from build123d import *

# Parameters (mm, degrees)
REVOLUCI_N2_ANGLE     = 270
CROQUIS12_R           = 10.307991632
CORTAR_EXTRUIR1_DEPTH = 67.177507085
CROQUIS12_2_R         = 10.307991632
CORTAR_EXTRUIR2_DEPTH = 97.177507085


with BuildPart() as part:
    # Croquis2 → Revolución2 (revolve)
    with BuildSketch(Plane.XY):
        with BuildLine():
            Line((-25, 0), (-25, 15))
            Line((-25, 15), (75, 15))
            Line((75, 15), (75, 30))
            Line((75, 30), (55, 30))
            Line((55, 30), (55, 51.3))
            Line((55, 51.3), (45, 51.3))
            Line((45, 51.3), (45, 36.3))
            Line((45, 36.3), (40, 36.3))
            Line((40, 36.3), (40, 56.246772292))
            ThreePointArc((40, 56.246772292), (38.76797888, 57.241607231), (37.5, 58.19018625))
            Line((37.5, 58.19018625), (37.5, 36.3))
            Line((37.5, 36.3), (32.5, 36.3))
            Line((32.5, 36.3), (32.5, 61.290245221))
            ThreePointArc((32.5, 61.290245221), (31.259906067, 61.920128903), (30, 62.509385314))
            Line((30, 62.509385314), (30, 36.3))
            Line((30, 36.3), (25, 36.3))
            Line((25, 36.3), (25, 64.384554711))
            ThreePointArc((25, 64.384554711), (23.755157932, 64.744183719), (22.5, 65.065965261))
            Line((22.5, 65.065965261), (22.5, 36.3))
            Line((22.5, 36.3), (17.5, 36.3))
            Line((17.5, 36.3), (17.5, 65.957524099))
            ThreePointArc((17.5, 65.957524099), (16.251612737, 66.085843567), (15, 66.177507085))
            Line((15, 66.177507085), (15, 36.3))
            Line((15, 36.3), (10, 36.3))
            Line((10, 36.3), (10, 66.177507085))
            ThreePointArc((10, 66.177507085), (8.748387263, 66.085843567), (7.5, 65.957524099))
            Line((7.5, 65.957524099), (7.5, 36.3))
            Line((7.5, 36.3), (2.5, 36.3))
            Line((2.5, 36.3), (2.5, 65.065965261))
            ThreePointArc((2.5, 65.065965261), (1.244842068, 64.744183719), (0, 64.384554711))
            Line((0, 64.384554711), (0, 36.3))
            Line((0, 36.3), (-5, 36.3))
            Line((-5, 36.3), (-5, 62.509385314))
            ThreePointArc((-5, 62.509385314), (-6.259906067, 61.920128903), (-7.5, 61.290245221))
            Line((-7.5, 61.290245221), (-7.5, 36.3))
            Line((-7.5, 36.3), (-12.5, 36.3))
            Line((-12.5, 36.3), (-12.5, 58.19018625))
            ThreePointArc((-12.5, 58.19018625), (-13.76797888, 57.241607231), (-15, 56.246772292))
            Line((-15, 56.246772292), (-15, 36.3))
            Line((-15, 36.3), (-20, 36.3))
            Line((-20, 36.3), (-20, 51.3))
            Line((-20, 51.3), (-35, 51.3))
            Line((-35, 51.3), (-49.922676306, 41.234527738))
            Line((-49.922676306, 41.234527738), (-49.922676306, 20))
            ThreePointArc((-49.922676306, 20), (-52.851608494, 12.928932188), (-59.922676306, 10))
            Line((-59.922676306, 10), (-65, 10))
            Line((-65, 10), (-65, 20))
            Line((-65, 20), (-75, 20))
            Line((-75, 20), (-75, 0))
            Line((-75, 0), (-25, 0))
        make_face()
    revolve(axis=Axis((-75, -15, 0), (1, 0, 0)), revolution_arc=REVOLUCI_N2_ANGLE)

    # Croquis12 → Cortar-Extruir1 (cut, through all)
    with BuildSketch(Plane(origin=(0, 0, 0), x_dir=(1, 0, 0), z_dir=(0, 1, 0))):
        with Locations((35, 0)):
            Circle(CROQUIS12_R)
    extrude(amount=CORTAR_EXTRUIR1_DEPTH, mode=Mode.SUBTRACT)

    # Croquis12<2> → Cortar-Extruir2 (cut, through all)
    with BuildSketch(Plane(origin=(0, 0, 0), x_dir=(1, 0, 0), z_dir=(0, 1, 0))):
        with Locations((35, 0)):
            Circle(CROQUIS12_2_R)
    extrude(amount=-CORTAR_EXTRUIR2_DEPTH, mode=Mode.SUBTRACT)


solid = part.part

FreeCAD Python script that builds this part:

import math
import FreeCAD as App
import Part
import Sketcher

V = App.Vector
Q = App.Units.Quantity

doc = App.newDocument("Part")
body = doc.addObject("PartDesign::Body", "Body")

# Sketch on XY plane
sketch1 = body.newObject("Sketcher::SketchObject", "Sketch")
sketch1.AttachmentSupport = (doc.getObject("XY_Plane"), [""])
sketch1.MapMode = "FlatFace"
sketch1.addGeometry(Part.LineSegment(V(-25, 0, 0), V(-25, 15, 0)), False)
sketch1.addGeometry(Part.LineSegment(V(-25, 15, 0), V(75, 15, 0)), False)
sketch1.addGeometry(Part.LineSegment(V(75, 15, 0), V(75, 30, 0)), False)
sketch1.addGeometry(Part.LineSegment(V(75, 30, 0), V(55, 30, 0)), False)
sketch1.addGeometry(Part.LineSegment(V(55, 30, 0), V(55, 51.3, 0)), False)
sketch1.addGeometry(Part.LineSegment(V(55, 51.3, 0), V(45, 51.3, 0)), False)
sketch1.addGeometry(Part.LineSegment(V(45, 51.3, 0), V(45, 36.3, 0)), False)
sketch1.addGeometry(Part.LineSegment(V(45, 36.3, 0), V(40, 36.3, 0)), False)
sketch1.addGeometry(Part.LineSegment(V(40, 36.3, 0), V(40, 56.246772, 0)), False)
sketch1.addGeometry(Part.ArcOfCircle(Part.Circle(V(12.5, 23.450583, 0), V(0, 0, 1), 42.8), math.radians(50.019761), math.radians(54.259708)), False)
sketch1.addGeometry(Part.LineSegment(V(37.5, 58.190186, 0), V(37.5, 36.3, 0)), False)
sketch1.addGeometry(Part.LineSegment(V(37.5, 36.3, 0), V(32.5, 36.3, 0)), False)
sketch1.addGeometry(Part.LineSegment(V(32.5, 36.3, 0), V(32.5, 61.290245, 0)), False)
sketch1.addGeometry(Part.ArcOfCircle(Part.Circle(V(12.5, 23.450584, 0), V(0, 0, 1), 42.8), math.radians(62.14149), math.radians(65.865596)), False)
sketch1.addGeometry(Part.LineSegment(V(30, 62.509385, 0), V(30, 36.3, 0)), False)
sketch1.addGeometry(Part.LineSegment(V(30, 36.3, 0), V(25, 36.3, 0)), False)
sketch1.addGeometry(Part.LineSegment(V(25, 36.3, 0), V(25, 64.384555, 0)), False)
sketch1.addGeometry(Part.ArcOfCircle(Part.Circle(V(12.5, 23.450584, 0), V(0, 0, 1), 42.8), math.radians(73.01891), math.radians(76.488245)), False)
sketch1.addGeometry(Part.LineSegment(V(22.5, 65.065965, 0), V(22.5, 36.3, 0)), False)
sketch1.addGeometry(Part.LineSegment(V(22.5, 36.3, 0), V(17.5, 36.3, 0)), False)
sketch1.addGeometry(Part.LineSegment(V(17.5, 36.3, 0), V(17.5, 65.957524, 0)), False)
sketch1.addGeometry(Part.ArcOfCircle(Part.Circle(V(12.5, 23.450585, 0), V(0, 0, 1), 42.799999), math.radians(83.291249), math.radians(86.651378)), False)
sketch1.addGeometry(Part.LineSegment(V(15, 66.177507, 0), V(15, 36.3, 0)), False)
sketch1.addGeometry(Part.LineSegment(V(15, 36.3, 0), V(10, 36.3, 0)), False)
sketch1.addGeometry(Part.LineSegment(V(10, 36.3, 0), V(10, 66.177507, 0)), False)
sketch1.addGeometry(Part.ArcOfCircle(Part.Circle(V(12.5, 23.450585, 0), V(0, 0, 1), 42.799999), math.radians(93.348622), math.radians(96.708751)), False)
sketch1.addGeometry(Part.LineSegment(V(7.5, 65.957524, 0), V(7.5, 36.3, 0)), False)
sketch1.addGeometry(Part.LineSegment(V(7.5, 36.3, 0), V(2.5, 36.3, 0)), False)
sketch1.addGeometry(Part.LineSegment(V(2.5, 36.3, 0), V(2.5, 65.065965, 0)), False)
sketch1.addGeometry(Part.ArcOfCircle(Part.Circle(V(12.5, 23.450584, 0), V(0, 0, 1), 42.8), math.radians(103.511755), math.radians(106.98109)), False)
sketch1.addGeometry(Part.LineSegment(V(0, 64.384555, 0), V(0, 36.3, 0)), False)
sketch1.addGeometry(Part.LineSegment(V(0, 36.3, 0), V(-5, 36.3, 0)), False)
sketch1.addGeometry(Part.LineSegment(V(-5, 36.3, 0), V(-5, 62.509385, 0)), False)
sketch1.addGeometry(Part.ArcOfCircle(Part.Circle(V(12.5, 23.450584, 0), V(0, 0, 1), 42.8), math.radians(114.134404), math.radians(117.85851)), False)
sketch1.addGeometry(Part.LineSegment(V(-7.5, 61.290245, 0), V(-7.5, 36.3, 0)), False)
sketch1.addGeometry(Part.LineSegment(V(-7.5, 36.3, 0), V(-12.5, 36.3, 0)), False)
sketch1.addGeometry(Part.LineSegment(V(-12.5, 36.3, 0), V(-12.5, 58.190186, 0)), False)
sketch1.addGeometry(Part.ArcOfCircle(Part.Circle(V(12.5, 23.450583, 0), V(0, 0, 1), 42.8), math.radians(125.740292), math.radians(129.980239)), False)
sketch1.addGeometry(Part.LineSegment(V(-15, 56.246772, 0), V(-15, 36.3, 0)), False)
sketch1.addGeometry(Part.LineSegment(V(-15, 36.3, 0), V(-20, 36.3, 0)), False)
sketch1.addGeometry(Part.LineSegment(V(-20, 36.3, 0), V(-20, 51.3, 0)), False)
sketch1.addGeometry(Part.LineSegment(V(-20, 51.3, 0), V(-35, 51.3, 0)), False)
sketch1.addGeometry(Part.LineSegment(V(-35, 51.3, 0), V(-49.922676, 41.234528, 0)), False)
sketch1.addGeometry(Part.LineSegment(V(-49.922676, 41.234528, 0), V(-49.922676, 20, 0)), False)
sketch1.addGeometry(Part.ArcOfCircle(Part.Circle(V(-59.922676, 20, 0), V(0, 0, 1), 10), math.radians(-90), math.radians(0)), False)
sketch1.addGeometry(Part.LineSegment(V(-59.922676, 10, 0), V(-65, 10, 0)), False)
sketch1.addGeometry(Part.LineSegment(V(-65, 10, 0), V(-65, 20, 0)), False)
sketch1.addGeometry(Part.LineSegment(V(-65, 20, 0), V(-75, 20, 0)), False)
sketch1.addGeometry(Part.LineSegment(V(-75, 20, 0), V(-75, 0, 0)), False)
sketch1.addGeometry(Part.LineSegment(V(-75, 0, 0), V(-25, 0, 0)), False)
sketch1.addGeometry(Part.LineSegment(V(-75, -15, 0), V(75, -15, 0)), True)  # axis
sketch1.addConstraint(Sketcher.Constraint("Coincident", 0, 2, 1, 1))
sketch1.addConstraint(Sketcher.Constraint("Coincident", 1, 2, 2, 1))
sketch1.addConstraint(Sketcher.Constraint("Coincident", 2, 2, 3, 1))
sketch1.addConstraint(Sketcher.Constraint("Coincident", 3, 2, 4, 1))
sketch1.addConstraint(Sketcher.Constraint("Coincident", 4, 2, 5, 1))
sketch1.addConstraint(Sketcher.Constraint("Coincident", 5, 2, 6, 1))
sketch1.addConstraint(Sketcher.Constraint("Coincident", 6, 2, 7, 1))
sketch1.addConstraint(Sketcher.Constraint("Coincident", 7, 2, 8, 1))
sketch1.addConstraint(Sketcher.Constraint("Coincident", 8, 2, 9, 1))
sketch1.addConstraint(Sketcher.Constraint("Coincident", 9, 2, 10, 1))
sketch1.addConstraint(Sketcher.Constraint("Coincident", 10, 2, 11, 1))
sketch1.addConstraint(Sketcher.Constraint("Coincident", 11, 2, 12, 1))
sketch1.addConstraint(Sketcher.Constraint("Coincident", 12, 2, 13, 1))
sketch1.addConstraint(Sketcher.Constraint("Coincident", 13, 2, 14, 1))
sketch1.addConstraint(Sketcher.Constraint("Coincident", 14, 2, 15, 1))
sketch1.addConstraint(Sketcher.Constraint("Coincident", 15, 2, 16, 1))
sketch1.addConstraint(Sketcher.Constraint("Coincident", 16, 2, 17, 1))
sketch1.addConstraint(Sketcher.Constraint("Coincident", 17, 2, 18, 1))
sketch1.addConstraint(Sketcher.Constraint("Coincident", 18, 2, 19, 1))
sketch1.addConstraint(Sketcher.Constraint("Coincident", 19, 2, 20, 1))
sketch1.addConstraint(Sketcher.Constraint("Coincident", 20, 2, 21, 1))
sketch1.addConstraint(Sketcher.Constraint("Coincident", 21, 2, 22, 1))
sketch1.addConstraint(Sketcher.Constraint("Coincident", 22, 2, 23, 1))
sketch1.addConstraint(Sketcher.Constraint("Coincident", 23, 2, 24, 1))
sketch1.addConstraint(Sketcher.Constraint("Coincident", 24, 2, 25, 1))
sketch1.addConstraint(Sketcher.Constraint("Coincident", 25, 2, 26, 1))
sketch1.addConstraint(Sketcher.Constraint("Coincident", 26, 2, 27, 1))
sketch1.addConstraint(Sketcher.Constraint("Coincident", 27, 2, 28, 1))
sketch1.addConstraint(Sketcher.Constraint("Coincident", 28, 2, 29, 1))
sketch1.addConstraint(Sketcher.Constraint("Coincident", 29, 2, 30, 1))
sketch1.addConstraint(Sketcher.Constraint("Coincident", 30, 2, 31, 1))
sketch1.addConstraint(Sketcher.Constraint("Coincident", 31, 2, 32, 1))
sketch1.addConstraint(Sketcher.Constraint("Coincident", 32, 2, 33, 1))
sketch1.addConstraint(Sketcher.Constraint("Coincident", 33, 2, 34, 1))
sketch1.addConstraint(Sketcher.Constraint("Coincident", 34, 2, 35, 1))
sketch1.addConstraint(Sketcher.Constraint("Coincident", 35, 2, 36, 1))
sketch1.addConstraint(Sketcher.Constraint("Coincident", 36, 2, 37, 1))
sketch1.addConstraint(Sketcher.Constraint("Coincident", 37, 2, 38, 1))
sketch1.addConstraint(Sketcher.Constraint("Coincident", 38, 2, 39, 1))
sketch1.addConstraint(Sketcher.Constraint("Coincident", 39, 2, 40, 1))
sketch1.addConstraint(Sketcher.Constraint("Coincident", 40, 2, 41, 1))
sketch1.addConstraint(Sketcher.Constraint("Coincident", 41, 2, 42, 1))
sketch1.addConstraint(Sketcher.Constraint("Coincident", 42, 2, 43, 1))
sketch1.addConstraint(Sketcher.Constraint("Tangent", 43, 2, 44, 2))
sketch1.addConstraint(Sketcher.Constraint("Tangent", 44, 1, 45, 1))
sketch1.addConstraint(Sketcher.Constraint("Coincident", 45, 2, 46, 1))
sketch1.addConstraint(Sketcher.Constraint("Coincident", 46, 2, 47, 1))
sketch1.addConstraint(Sketcher.Constraint("Coincident", 47, 2, 48, 1))
sketch1.addConstraint(Sketcher.Constraint("Coincident", 48, 2, 49, 1))
sketch1.addConstraint(Sketcher.Constraint("Coincident", 49, 2, 0, 1))
sketch1.addConstraint(Sketcher.Constraint("Vertical", 0))
sketch1.addConstraint(Sketcher.Constraint("Horizontal", 1))
sketch1.addConstraint(Sketcher.Constraint("Vertical", 2))
sketch1.addConstraint(Sketcher.Constraint("Horizontal", 3))
sketch1.addConstraint(Sketcher.Constraint("Vertical", 4))
sketch1.addConstraint(Sketcher.Constraint("Horizontal", 5))
sketch1.addConstraint(Sketcher.Constraint("Vertical", 6))
sketch1.addConstraint(Sketcher.Constraint("Horizontal", 7))
sketch1.addConstraint(Sketcher.Constraint("Vertical", 8))
sketch1.addConstraint(Sketcher.Constraint("Vertical", 10))
sketch1.addConstraint(Sketcher.Constraint("Horizontal", 11))
sketch1.addConstraint(Sketcher.Constraint("Vertical", 12))
sketch1.addConstraint(Sketcher.Constraint("Vertical", 14))
sketch1.addConstraint(Sketcher.Constraint("Horizontal", 15))
sketch1.addConstraint(Sketcher.Constraint("Vertical", 16))
sketch1.addConstraint(Sketcher.Constraint("Vertical", 18))
sketch1.addConstraint(Sketcher.Constraint("Horizontal", 19))
sketch1.addConstraint(Sketcher.Constraint("Vertical", 20))
sketch1.addConstraint(Sketcher.Constraint("Vertical", 22))
sketch1.addConstraint(Sketcher.Constraint("Horizontal", 23))
sketch1.addConstraint(Sketcher.Constraint("Vertical", 24))
sketch1.addConstraint(Sketcher.Constraint("Vertical", 26))
sketch1.addConstraint(Sketcher.Constraint("Horizontal", 27))
sketch1.addConstraint(Sketcher.Constraint("Vertical", 28))
sketch1.addConstraint(Sketcher.Constraint("Vertical", 30))
sketch1.addConstraint(Sketcher.Constraint("Horizontal", 31))
sketch1.addConstraint(Sketcher.Constraint("Vertical", 32))
sketch1.addConstraint(Sketcher.Constraint("Vertical", 34))
sketch1.addConstraint(Sketcher.Constraint("Horizontal", 35))
sketch1.addConstraint(Sketcher.Constraint("Vertical", 36))
sketch1.addConstraint(Sketcher.Constraint("Vertical", 38))
sketch1.addConstraint(Sketcher.Constraint("Horizontal", 39))
sketch1.addConstraint(Sketcher.Constraint("Vertical", 40))
sketch1.addConstraint(Sketcher.Constraint("Horizontal", 41))
sketch1.addConstraint(Sketcher.Constraint("Vertical", 43))
sketch1.addConstraint(Sketcher.Constraint("Horizontal", 45))
sketch1.addConstraint(Sketcher.Constraint("Vertical", 46))
sketch1.addConstraint(Sketcher.Constraint("Horizontal", 47))
sketch1.addConstraint(Sketcher.Constraint("Vertical", 48))
sketch1.addConstraint(Sketcher.Constraint("Horizontal", 49))
sketch1.addConstraint(Sketcher.Constraint("Horizontal", 50))
sketch1.addConstraint(Sketcher.Constraint("Coincident", 13, 3, 9, 3))
sketch1.addConstraint(Sketcher.Constraint("Coincident", 17, 3, 9, 3))
sketch1.addConstraint(Sketcher.Constraint("Coincident", 21, 3, 9, 3))
sketch1.addConstraint(Sketcher.Constraint("Coincident", 25, 3, 9, 3))
sketch1.addConstraint(Sketcher.Constraint("Coincident", 29, 3, 9, 3))
sketch1.addConstraint(Sketcher.Constraint("Coincident", 33, 3, 9, 3))
sketch1.addConstraint(Sketcher.Constraint("Coincident", 37, 3, 9, 3))
sketch1.addConstraint(Sketcher.Constraint("Equal", 9, 13))
sketch1.addConstraint(Sketcher.Constraint("Equal", 13, 17))
sketch1.addConstraint(Sketcher.Constraint("Equal", 17, 21))
sketch1.addConstraint(Sketcher.Constraint("Equal", 21, 25))
sketch1.addConstraint(Sketcher.Constraint("Equal", 25, 29))
sketch1.addConstraint(Sketcher.Constraint("Equal", 29, 33))
sketch1.addConstraint(Sketcher.Constraint("Equal", 33, 37))
sketch1.addConstraint(Sketcher.Constraint("Symmetric", 1, 2, 50, 1, -1, 1))
sketch1.addConstraint(Sketcher.Constraint("Symmetric", 26, 2, 34, 2, -2))
sketch1.addConstraint(Sketcher.Constraint("Symmetric", 22, 2, 38, 2, -2))
sketch1.addConstraint(Sketcher.Constraint("PointOnObject", 29, 2, -2))
sketch1.addConstraint(Sketcher.Constraint("PointOnObject", 48, 2, -1))
sketch1.addConstraint(Sketcher.Constraint("Horizontal", 7, 2, 10, 2))
sketch1.addConstraint(Sketcher.Constraint("Horizontal", 11, 2, 14, 2))
sketch1.addConstraint(Sketcher.Constraint("Horizontal", 15, 2, 18, 2))
sketch1.addConstraint(Sketcher.Constraint("Horizontal", 19, 2, 22, 2))
sketch1.addConstraint(Sketcher.Constraint("Horizontal", 21, 2, 24, 2))
sketch1.addConstraint(Sketcher.Constraint("Horizontal", 20, 2, 25, 2))
sketch1.addConstraint(Sketcher.Constraint("Horizontal", 23, 2, 26, 2))
sketch1.addConstraint(Sketcher.Constraint("Horizontal", 17, 2, 28, 2))
sketch1.addConstraint(Sketcher.Constraint("Horizontal", 16, 2, 29, 2))
sketch1.addConstraint(Sketcher.Constraint("Horizontal", 27, 2, 30, 2))
sketch1.addConstraint(Sketcher.Constraint("Horizontal", 13, 2, 32, 2))
sketch1.addConstraint(Sketcher.Constraint("Horizontal", 12, 2, 33, 2))
sketch1.addConstraint(Sketcher.Constraint("Horizontal", 9, 2, 36, 2))
sketch1.addConstraint(Sketcher.Constraint("Horizontal", 8, 2, 37, 2))
sketch1.addConstraint(Sketcher.Constraint("Horizontal", 5, 2, 40, 2))
sketch1.addConstraint(Sketcher.Constraint("Horizontal", 43, 2, 46, 2))
sketch1.addConstraint(Sketcher.Constraint("Vertical", 48, 2, 50, 1))
sketch1.addConstraint(Sketcher.Constraint("Vertical", 2, 2, 50, 2))
sketch1.addConstraint(Sketcher.Constraint("Equal", 7, 11))
sketch1.addConstraint(Sketcher.Constraint("Equal", 11, 15))
sketch1.addConstraint(Sketcher.Constraint("Equal", 15, 19))
sketch1.addConstraint(Sketcher.Constraint("Equal", 19, 23))
sketch1.addConstraint(Sketcher.Constraint("Equal", 35, 39))
sketch1.addConstraint(Sketcher.Constraint("Equal", 5, 47))
sketch1.addConstraint(Sketcher.Constraint("Equal", 41, 0))
sketch1.addConstraint(Sketcher.Constraint("Equal", 0, 2))
sketch1.addConstraint(Sketcher.Constraint("Equal", 2, 6))
sketch1.addConstraint(Sketcher.Constraint("Equal", 47, 46))
sketch1.addConstraint(Sketcher.Constraint("Equal", 3, 48))
sketch1.addConstraint(Sketcher.Constraint("Radius", 44, Q("10 mm")))
sketch1.addConstraint(Sketcher.Constraint("Radius", 9, Q("42.8 mm")))
sketch1.addConstraint(Sketcher.Constraint("DistanceX", 1, 1, 1, 2, Q("100 mm")))
sketch1.addConstraint(Sketcher.Constraint("DistanceX", 3, 2, 3, 1, Q("20 mm")))
sketch1.addConstraint(Sketcher.Constraint("DistanceX", 7, 2, 7, 1, Q("5 mm")))
sketch1.addConstraint(Sketcher.Constraint("DistanceX", 41, 2, 41, 1, Q("15 mm")))
sketch1.addConstraint(Sketcher.Constraint("DistanceX", 49, 1, 49, 2, Q("50 mm")))
sketch1.addConstraint(Sketcher.Constraint("Angle", 42, Q("-146 deg")))
sketch1.addConstraint(Sketcher.Constraint("Distance", 42, Q("18 mm")))
sketch1.addConstraint(Sketcher.Constraint("DistanceY", 4, 1, 4, 2, Q("21.3 mm")))
sketch1.addConstraint(Sketcher.Constraint("DistanceX", -1, 1, 9, 2, Q("37.5 mm")))
sketch1.addConstraint(Sketcher.Constraint("DistanceY", 8, 1, 8, 2, Q("19.946772 mm")))
revolution = body.newObject("PartDesign::Revolution", "Revolution")
revolution.Profile = sketch1
revolution.ReferenceAxis = (sketch1, ["Axis0"])
revolution.Angle = 270

# Sketch on XZ plane
sketch2 = body.newObject("Sketcher::SketchObject", "Sketch001")
sketch2.AttachmentSupport = (doc.getObject("XZ_Plane"), [""])
sketch2.MapMode = "FlatFace"
sketch2.addGeometry(Part.Circle(V(35, 0, 0), V(0, 0, 1), 10.307992), False)
sketch2.addConstraint(Sketcher.Constraint("PointOnObject", 0, 3, -1))
sketch2.addConstraint(Sketcher.Constraint("DistanceX", -1, 1, 0, 3, Q("35 mm")))
sketch2.addConstraint(Sketcher.Constraint("Diameter", 0, Q("20.615983 mm")))
pocket1 = body.newObject("PartDesign::Pocket", "Pocket")
pocket1.Profile = sketch2
pocket1.Type = "ThroughAll"

# Sketch on XZ plane
sketch3 = body.newObject("Sketcher::SketchObject", "Sketch002")
sketch3.AttachmentSupport = (doc.getObject("XZ_Plane"), [""])
sketch3.MapMode = "FlatFace"
sketch3.addGeometry(Part.Circle(V(35, 0, 0), V(0, 0, 1), 10.307992), False)
sketch3.addConstraint(Sketcher.Constraint("PointOnObject", 0, 3, -1))
sketch3.addConstraint(Sketcher.Constraint("DistanceX", -1, 1, 0, 3, Q("35 mm")))
sketch3.addConstraint(Sketcher.Constraint("Diameter", 0, Q("20.615983 mm")))
pocket2 = body.newObject("PartDesign::Pocket", "Pocket001")
pocket2.Profile = sketch3
pocket2.Type = "ThroughAll"
pocket2.Reversed = True

doc.recompute()
